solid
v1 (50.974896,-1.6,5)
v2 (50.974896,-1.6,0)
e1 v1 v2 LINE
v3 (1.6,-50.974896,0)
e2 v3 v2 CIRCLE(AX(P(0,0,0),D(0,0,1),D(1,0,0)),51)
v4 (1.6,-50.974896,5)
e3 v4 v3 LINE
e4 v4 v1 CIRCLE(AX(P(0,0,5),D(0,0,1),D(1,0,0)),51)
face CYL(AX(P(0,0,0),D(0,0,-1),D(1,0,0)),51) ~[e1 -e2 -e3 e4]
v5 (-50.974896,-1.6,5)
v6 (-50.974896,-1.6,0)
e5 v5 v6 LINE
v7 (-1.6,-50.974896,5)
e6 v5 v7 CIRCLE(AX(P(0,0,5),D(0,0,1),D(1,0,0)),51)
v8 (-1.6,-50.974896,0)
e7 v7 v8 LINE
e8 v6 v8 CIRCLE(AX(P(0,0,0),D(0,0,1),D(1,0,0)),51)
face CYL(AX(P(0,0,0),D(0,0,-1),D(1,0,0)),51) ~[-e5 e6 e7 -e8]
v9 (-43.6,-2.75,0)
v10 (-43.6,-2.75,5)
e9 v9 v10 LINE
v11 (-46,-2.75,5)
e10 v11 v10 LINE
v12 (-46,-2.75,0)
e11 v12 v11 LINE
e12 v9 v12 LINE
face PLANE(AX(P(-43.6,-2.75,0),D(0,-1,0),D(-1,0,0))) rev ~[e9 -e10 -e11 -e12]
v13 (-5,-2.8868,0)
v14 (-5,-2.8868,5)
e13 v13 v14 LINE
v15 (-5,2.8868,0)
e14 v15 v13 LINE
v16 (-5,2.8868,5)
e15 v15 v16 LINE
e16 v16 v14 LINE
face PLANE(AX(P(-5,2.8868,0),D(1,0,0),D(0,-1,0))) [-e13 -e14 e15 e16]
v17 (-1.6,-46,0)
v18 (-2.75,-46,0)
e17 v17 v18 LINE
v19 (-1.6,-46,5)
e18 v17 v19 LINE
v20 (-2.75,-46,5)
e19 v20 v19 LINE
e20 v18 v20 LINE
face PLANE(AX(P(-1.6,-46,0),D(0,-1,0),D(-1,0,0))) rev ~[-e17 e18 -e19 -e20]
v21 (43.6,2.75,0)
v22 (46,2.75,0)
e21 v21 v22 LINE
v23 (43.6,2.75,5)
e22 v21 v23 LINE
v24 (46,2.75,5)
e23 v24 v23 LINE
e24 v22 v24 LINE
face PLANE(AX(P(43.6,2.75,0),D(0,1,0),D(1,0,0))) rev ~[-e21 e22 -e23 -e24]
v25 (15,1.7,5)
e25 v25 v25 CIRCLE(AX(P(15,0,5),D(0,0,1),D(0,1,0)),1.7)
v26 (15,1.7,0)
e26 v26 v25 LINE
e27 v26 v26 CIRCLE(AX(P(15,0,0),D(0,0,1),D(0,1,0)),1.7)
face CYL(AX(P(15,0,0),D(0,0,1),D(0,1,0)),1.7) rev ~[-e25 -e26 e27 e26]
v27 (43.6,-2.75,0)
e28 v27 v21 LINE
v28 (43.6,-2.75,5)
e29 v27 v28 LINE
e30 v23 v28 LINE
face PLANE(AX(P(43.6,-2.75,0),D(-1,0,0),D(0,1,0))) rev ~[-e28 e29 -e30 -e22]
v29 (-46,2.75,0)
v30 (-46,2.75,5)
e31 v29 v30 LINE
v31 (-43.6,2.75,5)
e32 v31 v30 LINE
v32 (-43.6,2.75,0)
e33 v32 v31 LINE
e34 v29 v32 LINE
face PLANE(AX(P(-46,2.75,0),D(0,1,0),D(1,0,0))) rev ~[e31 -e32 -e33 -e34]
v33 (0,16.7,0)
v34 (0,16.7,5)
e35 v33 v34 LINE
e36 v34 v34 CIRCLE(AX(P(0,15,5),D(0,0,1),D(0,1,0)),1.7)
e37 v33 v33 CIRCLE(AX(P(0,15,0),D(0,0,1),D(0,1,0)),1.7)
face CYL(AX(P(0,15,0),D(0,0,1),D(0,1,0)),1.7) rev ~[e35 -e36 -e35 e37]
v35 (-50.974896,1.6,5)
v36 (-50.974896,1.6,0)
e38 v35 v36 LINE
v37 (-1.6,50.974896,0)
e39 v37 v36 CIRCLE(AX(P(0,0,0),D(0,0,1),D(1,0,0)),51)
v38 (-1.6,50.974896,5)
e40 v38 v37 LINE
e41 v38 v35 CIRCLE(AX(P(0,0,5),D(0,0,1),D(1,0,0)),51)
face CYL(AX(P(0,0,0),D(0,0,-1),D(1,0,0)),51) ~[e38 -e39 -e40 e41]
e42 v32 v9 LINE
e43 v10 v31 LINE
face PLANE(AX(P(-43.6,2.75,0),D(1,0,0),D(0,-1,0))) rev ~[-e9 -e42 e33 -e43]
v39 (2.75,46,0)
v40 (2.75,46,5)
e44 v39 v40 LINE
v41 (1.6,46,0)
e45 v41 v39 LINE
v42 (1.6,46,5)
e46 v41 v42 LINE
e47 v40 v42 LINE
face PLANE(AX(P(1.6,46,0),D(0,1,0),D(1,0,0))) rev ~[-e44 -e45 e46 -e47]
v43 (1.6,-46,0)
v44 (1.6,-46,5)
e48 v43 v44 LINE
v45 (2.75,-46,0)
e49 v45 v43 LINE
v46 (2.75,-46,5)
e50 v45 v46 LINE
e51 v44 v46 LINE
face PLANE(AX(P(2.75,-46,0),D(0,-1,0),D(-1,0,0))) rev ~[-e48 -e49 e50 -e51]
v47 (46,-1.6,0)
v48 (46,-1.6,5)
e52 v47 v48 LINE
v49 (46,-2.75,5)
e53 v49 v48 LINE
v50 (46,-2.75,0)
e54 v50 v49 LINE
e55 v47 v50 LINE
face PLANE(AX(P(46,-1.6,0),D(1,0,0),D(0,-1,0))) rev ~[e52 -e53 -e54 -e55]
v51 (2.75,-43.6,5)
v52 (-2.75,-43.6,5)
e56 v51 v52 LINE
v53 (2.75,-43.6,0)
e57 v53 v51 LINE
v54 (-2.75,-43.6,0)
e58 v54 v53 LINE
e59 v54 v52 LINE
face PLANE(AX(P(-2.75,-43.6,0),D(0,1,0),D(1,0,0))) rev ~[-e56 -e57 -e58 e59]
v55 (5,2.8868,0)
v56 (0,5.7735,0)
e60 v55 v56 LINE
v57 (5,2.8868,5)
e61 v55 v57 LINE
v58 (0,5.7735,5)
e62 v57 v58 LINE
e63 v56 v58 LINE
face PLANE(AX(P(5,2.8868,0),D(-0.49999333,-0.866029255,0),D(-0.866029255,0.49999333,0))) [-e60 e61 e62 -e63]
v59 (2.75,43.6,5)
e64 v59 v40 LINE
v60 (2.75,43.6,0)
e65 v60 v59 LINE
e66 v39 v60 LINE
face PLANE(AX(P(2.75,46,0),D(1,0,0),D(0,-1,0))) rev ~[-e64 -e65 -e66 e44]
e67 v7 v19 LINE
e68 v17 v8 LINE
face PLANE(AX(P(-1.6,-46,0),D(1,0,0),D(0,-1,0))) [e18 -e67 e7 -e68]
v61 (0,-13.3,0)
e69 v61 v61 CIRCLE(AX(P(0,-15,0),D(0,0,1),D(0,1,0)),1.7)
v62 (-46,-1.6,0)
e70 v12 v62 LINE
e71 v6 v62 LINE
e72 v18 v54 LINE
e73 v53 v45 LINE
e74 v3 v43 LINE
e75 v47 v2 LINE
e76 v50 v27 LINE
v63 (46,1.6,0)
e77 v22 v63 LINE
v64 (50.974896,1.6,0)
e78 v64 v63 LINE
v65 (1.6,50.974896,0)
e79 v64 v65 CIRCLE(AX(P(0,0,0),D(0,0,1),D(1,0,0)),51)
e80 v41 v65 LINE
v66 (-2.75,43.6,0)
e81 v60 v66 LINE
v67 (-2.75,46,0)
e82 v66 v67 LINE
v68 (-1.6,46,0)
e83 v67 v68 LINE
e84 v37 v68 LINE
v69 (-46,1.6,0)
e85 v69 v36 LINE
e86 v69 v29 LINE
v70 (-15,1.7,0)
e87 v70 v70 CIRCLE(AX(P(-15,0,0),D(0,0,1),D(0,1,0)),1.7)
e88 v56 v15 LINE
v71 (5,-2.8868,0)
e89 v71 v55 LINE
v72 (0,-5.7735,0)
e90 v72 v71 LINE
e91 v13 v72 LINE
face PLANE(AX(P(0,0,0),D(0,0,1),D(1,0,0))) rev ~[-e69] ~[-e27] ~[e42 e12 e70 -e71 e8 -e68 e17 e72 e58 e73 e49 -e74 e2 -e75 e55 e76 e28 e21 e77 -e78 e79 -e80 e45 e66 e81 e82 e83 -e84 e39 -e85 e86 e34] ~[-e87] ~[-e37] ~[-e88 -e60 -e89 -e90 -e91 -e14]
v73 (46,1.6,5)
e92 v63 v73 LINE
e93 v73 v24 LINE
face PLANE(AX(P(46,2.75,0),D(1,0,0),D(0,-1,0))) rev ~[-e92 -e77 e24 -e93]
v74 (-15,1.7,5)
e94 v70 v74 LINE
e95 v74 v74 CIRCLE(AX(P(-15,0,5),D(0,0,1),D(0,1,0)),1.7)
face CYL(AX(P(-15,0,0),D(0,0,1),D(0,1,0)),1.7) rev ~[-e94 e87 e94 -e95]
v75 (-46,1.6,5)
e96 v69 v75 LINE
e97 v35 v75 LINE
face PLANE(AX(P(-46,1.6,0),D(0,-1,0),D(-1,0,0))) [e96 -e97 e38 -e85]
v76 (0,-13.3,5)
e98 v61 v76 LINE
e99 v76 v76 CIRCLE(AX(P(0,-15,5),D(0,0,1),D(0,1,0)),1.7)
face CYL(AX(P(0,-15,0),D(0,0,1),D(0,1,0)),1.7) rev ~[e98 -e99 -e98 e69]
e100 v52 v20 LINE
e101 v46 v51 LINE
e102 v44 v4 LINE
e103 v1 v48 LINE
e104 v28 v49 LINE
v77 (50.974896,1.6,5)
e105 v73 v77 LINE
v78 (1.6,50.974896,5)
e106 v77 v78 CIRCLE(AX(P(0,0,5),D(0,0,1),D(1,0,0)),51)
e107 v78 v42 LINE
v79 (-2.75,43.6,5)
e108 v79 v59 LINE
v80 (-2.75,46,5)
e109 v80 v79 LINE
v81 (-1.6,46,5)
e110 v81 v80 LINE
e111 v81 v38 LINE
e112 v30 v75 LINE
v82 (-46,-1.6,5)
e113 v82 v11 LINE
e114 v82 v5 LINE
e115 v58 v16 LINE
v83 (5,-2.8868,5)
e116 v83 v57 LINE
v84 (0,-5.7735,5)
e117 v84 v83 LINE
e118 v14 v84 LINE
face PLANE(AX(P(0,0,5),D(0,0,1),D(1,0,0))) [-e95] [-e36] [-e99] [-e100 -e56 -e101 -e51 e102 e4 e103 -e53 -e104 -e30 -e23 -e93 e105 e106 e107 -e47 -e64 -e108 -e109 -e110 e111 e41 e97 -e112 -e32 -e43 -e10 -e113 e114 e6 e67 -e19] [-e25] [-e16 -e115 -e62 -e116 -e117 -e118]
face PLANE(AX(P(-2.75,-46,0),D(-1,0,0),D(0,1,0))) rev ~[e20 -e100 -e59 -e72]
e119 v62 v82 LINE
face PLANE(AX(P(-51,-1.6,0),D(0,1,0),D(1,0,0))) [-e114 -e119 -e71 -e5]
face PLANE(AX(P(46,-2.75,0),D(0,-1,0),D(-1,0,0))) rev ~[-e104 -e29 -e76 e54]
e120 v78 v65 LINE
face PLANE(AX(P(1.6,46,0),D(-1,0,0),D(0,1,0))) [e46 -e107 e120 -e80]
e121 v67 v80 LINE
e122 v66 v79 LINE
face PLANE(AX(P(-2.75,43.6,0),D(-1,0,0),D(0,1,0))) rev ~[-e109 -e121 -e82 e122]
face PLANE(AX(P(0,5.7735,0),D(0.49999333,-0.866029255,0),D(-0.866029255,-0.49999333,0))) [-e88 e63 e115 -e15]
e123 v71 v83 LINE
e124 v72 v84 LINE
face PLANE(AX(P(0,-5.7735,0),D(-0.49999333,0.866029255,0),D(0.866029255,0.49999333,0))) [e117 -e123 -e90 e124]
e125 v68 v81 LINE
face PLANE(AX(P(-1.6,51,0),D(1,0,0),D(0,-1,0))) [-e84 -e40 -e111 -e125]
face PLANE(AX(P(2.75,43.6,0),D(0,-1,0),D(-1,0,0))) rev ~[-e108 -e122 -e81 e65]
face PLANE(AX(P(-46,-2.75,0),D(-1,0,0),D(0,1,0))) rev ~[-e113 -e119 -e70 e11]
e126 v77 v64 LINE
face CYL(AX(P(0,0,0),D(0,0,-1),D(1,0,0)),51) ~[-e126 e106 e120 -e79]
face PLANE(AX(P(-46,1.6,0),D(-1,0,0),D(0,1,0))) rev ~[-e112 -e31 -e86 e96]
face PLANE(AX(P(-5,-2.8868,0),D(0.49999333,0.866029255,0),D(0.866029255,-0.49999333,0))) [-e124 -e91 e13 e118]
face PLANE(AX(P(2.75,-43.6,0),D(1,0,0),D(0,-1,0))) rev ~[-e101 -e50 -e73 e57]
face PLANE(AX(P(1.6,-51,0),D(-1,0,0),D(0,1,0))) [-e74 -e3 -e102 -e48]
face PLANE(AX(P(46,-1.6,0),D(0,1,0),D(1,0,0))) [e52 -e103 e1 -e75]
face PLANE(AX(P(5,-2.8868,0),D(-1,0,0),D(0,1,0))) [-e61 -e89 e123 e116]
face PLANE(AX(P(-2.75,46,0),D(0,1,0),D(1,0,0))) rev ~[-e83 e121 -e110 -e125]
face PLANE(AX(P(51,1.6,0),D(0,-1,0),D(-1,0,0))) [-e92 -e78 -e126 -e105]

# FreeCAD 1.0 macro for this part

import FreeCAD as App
import Part
import Sketcher
Q = App.Units.Quantity

doc = App.newDocument("Part")
body = doc.addObject("PartDesign::Body", "Body")

sketch1 = body.newObject("Sketcher::SketchObject", "Sketch")
sketch1.AttachmentSupport = (doc.getObject("XY_Plane"), [""])
sketch1.MapMode = "FlatFace"
sketch1.addGeometry(Part.Circle(App.Vector(0, 0, 0), App.Vector(0, 0, 1), 51), False)
sketch1.addConstraint([
    Sketcher.Constraint("Coincident", 0, 3, -1, 1),
    Sketcher.Constraint("Diameter", 0, Q("102 mm")),
])
pad1 = body.newObject("PartDesign::Pad", "Pad")
pad1.Profile = sketch1
pad1.Length = 5

sketch2 = body.newObject("Sketcher::SketchObject", "Sketch001")
sketch2.AttachmentSupport = (doc.getObject("XY_Plane"), [""])
sketch2.MapMode = "FlatFace"
sketch2.addGeometry([
    Part.LineSegment(App.Vector(-5, 3, 0), App.Vector(0, 6, 0)),
    Part.LineSegment(App.Vector(0, 6, 0), App.Vector(5, 3, 0)),
    Part.LineSegment(App.Vector(5, 3, 0), App.Vector(5, -3, 0)),
    Part.LineSegment(App.Vector(5, -3, 0), App.Vector(0, -6, 0)),
    Part.LineSegment(App.Vector(0, -6, 0), App.Vector(-5, -3, 0)),
    Part.LineSegment(App.Vector(-5, -3, 0), App.Vector(-5, 3, 0)),
], False)
sketch2.addConstraint([
    Sketcher.Constraint("Coincident", 0, 2, 1, 1),
    Sketcher.Constraint("Coincident", 1, 2, 2, 1),
    Sketcher.Constraint("Coincident", 2, 2, 3, 1),
    Sketcher.Constraint("Coincident", 3, 2, 4, 1),
    Sketcher.Constraint("Coincident", 4, 2, 5, 1),
    Sketcher.Constraint("Coincident", 5, 2, 0, 1),
    Sketcher.Constraint("Vertical", 2),
    Sketcher.Constraint("Vertical", 5),
    Sketcher.Constraint("Symmetric", 0, 2, 3, 2, -1, 1),
    Sketcher.Constraint("Symmetric", 1, 2, 4, 2, -1, 1),
    Sketcher.Constraint("PointOnObject", 0, 2, -2),
    Sketcher.Constraint("Parallel", 0, 3),
    Sketcher.Constraint("Horizontal", 2, 2, 4, 2),
    Sketcher.Constraint("DistanceX", 4, 2, 2, 2, Q("10 mm")),
    Sketcher.Constraint("Angle", 0, Q("29.9996 deg")),
    Sketcher.Constraint("DistanceY", 2, 2, 2, 1, Q("5.7736 mm")),
])
pocket1 = body.newObject("PartDesign::Pocket", "Pocket")
pocket1.Profile = sketch2
pocket1.Length = 5
pocket1.Reversed = True

sketch3 = body.newObject("Sketcher::SketchObject", "Sketch002")
sketch3.AttachmentSupport = (doc.getObject("XY_Plane"), [""])
sketch3.MapMode = "FlatFace"
sketch3.addGeometry([
    Part.Circle(App.Vector(0, 15, 0), App.Vector(0, 0, 1), 1.7),
    Part.Circle(App.Vector(-15, 0, 0), App.Vector(0, 0, 1), 1.7),
    Part.Circle(App.Vector(0, -15, 0), App.Vector(0, 0, 1), 1.7),
    Part.Circle(App.Vector(15, 0, 0), App.Vector(0, 0, 1), 1.7),
], False)
sketch3.addConstraint([
    Sketcher.Constraint("Equal", 0, 1),
    Sketcher.Constraint("Equal", 1, 2),
    Sketcher.Constraint("Equal", 2, 3),
    Sketcher.Constraint("Symmetric", 0, 3, 2, 3, -1, 1),
    Sketcher.Constraint("Symmetric", 1, 3, 3, 3, -1, 1),
    Sketcher.Constraint("PointOnObject", 0, 3, -2),
    Sketcher.Constraint("PointOnObject", 1, 3, -1),
    Sketcher.Constraint("Diameter", 0, Q("3.4 mm")),
    Sketcher.Constraint("DistanceY", -1, 1, 0, 3, Q("15 mm")),
    Sketcher.Constraint("DistanceX", 1, 3, -1, 1, Q("15 mm")),
])
doc.recompute()
hole = body.newObject("PartDesign::Hole", "Hole")
hole.Profile = sketch3
hole.ThreadType = "None"
hole.Diameter = 3.4
hole.DepthType = "Dimension"
hole.Depth = 8
hole.DrillPoint = "Angled"
hole.DrillPointAngle = 118
hole.Reversed = True

sketch4 = body.newObject("Sketcher::SketchObject", "Sketch003")
sketch4.AttachmentSupport = (doc.getObject("XY_Plane"), [""])
sketch4.MapMode = "FlatFace"
sketch4.addGeometry([
    Part.LineSegment(App.Vector(-1.6, 51, 0), App.Vector(1.6, 51, 0)),
    Part.LineSegment(App.Vector(1.6, 51, 0), App.Vector(1.6, 46, 0)),
    Part.LineSegment(App.Vector(1.6, 46, 0), App.Vector(2.8, 46, 0)),
    Part.LineSegment(App.Vector(2.8, 46, 0), App.Vector(2.8, 43.6, 0)),
    Part.LineSegment(App.Vector(2.8, 43.6, 0), App.Vector(-2.8, 43.6, 0)),
    Part.LineSegment(App.Vector(-2.8, 43.6, 0), App.Vector(-2.8, 46, 0)),
    Part.LineSegment(App.Vector(-2.8, 46, 0), App.Vector(-1.6, 46, 0)),
    Part.LineSegment(App.Vector(-1.6, 46, 0), App.Vector(-1.6, 51, 0)),
    Part.LineSegment(App.Vector(51, 1.6, 0), App.Vector(51, -1.6, 0)),
    Part.LineSegment(App.Vector(51, -1.6, 0), App.Vector(46, -1.6, 0)),
    Part.LineSegment(App.Vector(46, -1.6, 0), App.Vector(46, -2.8, 0)),
    Part.LineSegment(App.Vector(46, -2.8, 0), App.Vector(43.6, -2.8, 0)),
    Part.LineSegment(App.Vector(43.6, -2.8, 0), App.Vector(43.6, 2.8, 0)),
    Part.LineSegment(App.Vector(43.6, 2.8, 0), App.Vector(46, 2.8, 0)),
    Part.LineSegment(App.Vector(46, 2.8, 0), App.Vector(46, 1.6, 0)),
    Part.LineSegment(App.Vector(46, 1.6, 0), App.Vector(51, 1.6, 0)),
    Part.LineSegment(App.Vector(1.6, -51, 0), App.Vector(-1.6, -51, 0)),
    Part.LineSegment(App.Vector(-1.6, -51, 0), App.Vector(-1.6, -46, 0)),
    Part.LineSegment(App.Vector(-1.6, -46, 0), App.Vector(-2.8, -46, 0)),
    Part.LineSegment(App.Vector(-2.8, -46, 0), App.Vector(-2.8, -43.6, 0)),
    Part.LineSegment(App.Vector(-2.8, -43.6, 0), App.Vector(2.8, -43.6, 0)),
    Part.LineSegment(App.Vector(2.8, -43.6, 0), App.Vector(2.8, -46, 0)),
    Part.LineSegment(App.Vector(2.8, -46, 0), App.Vector(1.6, -46, 0)),
    Part.LineSegment(App.Vector(1.6, -46, 0), App.Vector(1.6, -51, 0)),
    Part.LineSegment(App.Vector(-51, -1.6, 0), App.Vector(-51, 1.6, 0)),
    Part.LineSegment(App.Vector(-51, 1.6, 0), App.Vector(-46, 1.6, 0)),
    Part.LineSegment(App.Vector(-46, 1.6, 0), App.Vector(-46, 2.8, 0)),
    Part.LineSegment(App.Vector(-46, 2.8, 0), App.Vector(-43.6, 2.8, 0)),
    Part.LineSegment(App.Vector(-43.6, 2.8, 0), App.Vector(-43.6, -2.8, 0)),
    Part.LineSegment(App.Vector(-43.6, -2.8, 0), App.Vector(-46, -2.8, 0)),
    Part.LineSegment(App.Vector(-46, -2.8, 0), App.Vector(-46, -1.6, 0)),
    Part.LineSegment(App.Vector(-46, -1.6, 0), App.Vector(-51, -1.6, 0)),
], False)
sketch4.addConstraint([
    Sketcher.Constraint("Coincident", 0, 2, 1, 1),
    Sketcher.Constraint("Coincident", 1, 2, 2, 1),
    Sketcher.Constraint("Coincident", 2, 2, 3, 1),
    Sketcher.Constraint("Coincident", 3, 2, 4, 1),
    Sketcher.Constraint("Coincident", 4, 2, 5, 1),
    Sketcher.Constraint("Coincident", 5, 2, 6, 1),
    Sketcher.Constraint("Coincident", 6, 2, 7, 1),
    Sketcher.Constraint("Coincident", 7, 2, 0, 1),
    Sketcher.Constraint("Coincident", 8, 2, 9, 1),
    Sketcher.Constraint("Coincident", 9, 2, 10, 1),
    Sketcher.Constraint("Coincident", 10, 2, 11, 1),
    Sketcher.Constraint("Coincident", 11, 2, 12, 1),
    Sketcher.Constraint("Coincident", 12, 2, 13, 1),
    Sketcher.Constraint("Coincident", 13, 2, 14, 1),
    Sketcher.Constraint("Coincident", 14, 2, 15, 1),
    Sketcher.Constraint("Coincident", 15, 2, 8, 1),
    Sketcher.Constraint("Coincident", 16, 2, 17, 1),
    Sketcher.Constraint("Coincident", 17, 2, 18, 1),
    Sketcher.Constraint("Coincident", 18, 2, 19, 1),
    Sketcher.Constraint("Coincident", 19, 2, 20, 1),
    Sketcher.Constraint("Coincident", 20, 2, 21, 1),
    Sketcher.Constraint("Coincident", 21, 2, 22, 1),
    Sketcher.Constraint("Coincident", 22, 2, 23, 1),
    Sketcher.Constraint("Coincident", 23, 2, 16, 1),
    Sketcher.Constraint("Coincident", 24, 2, 25, 1),
    Sketcher.Constraint("Coincident", 25, 2, 26, 1),
    Sketcher.Constraint("Coincident", 26, 2, 27, 1),
    Sketcher.Constraint("Coincident", 27, 2, 28, 1),
    Sketcher.Constraint("Coincident", 28, 2, 29, 1),
    Sketcher.Constraint("Coincident", 29, 2, 30, 1),
    Sketcher.Constraint("Coincident", 30, 2, 31, 1),
    Sketcher.Constraint("Coincident", 31, 2, 24, 1),
    Sketcher.Constraint("Horizontal", 0),
    Sketcher.Constraint("Vertical", 1),
    Sketcher.Constraint("Horizontal", 2),
    Sketcher.Constraint("Vertical", 3),
    Sketcher.Constraint("Horizontal", 4),
    Sketcher.Constraint("Vertical", 5),
    Sketcher.Constraint("Horizontal", 6),
    Sketcher.Constraint("Vertical", 7),
    Sketcher.Constraint("Vertical", 8),
    Sketcher.Constraint("Horizontal", 9),
    Sketcher.Constraint("Vertical", 10),
    Sketcher.Constraint("Horizontal", 11),
    Sketcher.Constraint("Vertical", 12),
    Sketcher.Constraint("Horizontal", 13),
    Sketcher.Constraint("Vertical", 14),
    Sketcher.Constraint("Horizontal", 15),
    Sketcher.Constraint("Horizontal", 16),
    Sketcher.Constraint("Vertical", 17),
    Sketcher.Constraint("Horizontal", 18),
    Sketcher.Constraint("Vertical", 19),
    Sketcher.Constraint("Horizontal", 20),
    Sketcher.Constraint("Vertical", 21),
    Sketcher.Constraint("Horizontal", 22),
    Sketcher.Constraint("Vertical", 23),
    Sketcher.Constraint("Vertical", 24),
    Sketcher.Constraint("Horizontal", 25),
    Sketcher.Constraint("Vertical", 26),
    Sketcher.Constraint("Horizontal", 27),
    Sketcher.Constraint("Vertical", 28),
    Sketcher.Constraint("Horizontal", 29),
    Sketcher.Constraint("Vertical", 30),
    Sketcher.Constraint("Horizontal", 31),
    Sketcher.Constraint("Symmetric", 0, 2, 16, 2, -1, 1),
    Sketcher.Constraint("Symmetric", 2, 2, 18, 2, -1, 1),
    Sketcher.Constraint("Symmetric", 4, 2, 20, 2, -1, 1),
    Sketcher.Constraint("Symmetric", 6, 2, 22, 2, -1, 1),
    Sketcher.Constraint("Symmetric", 8, 2, 24, 2, -1, 1),
    Sketcher.Constraint("Symmetric", 10, 2, 26, 2, -1, 1),
    Sketcher.Constraint("Symmetric", 12, 2, 28, 2, -1, 1),
    Sketcher.Constraint("Symmetric", 14, 2, 30, 2, -1, 1),
    Sketcher.Constraint("Symmetric", 2, 2, 5, 2, -2),
    Sketcher.Constraint("Symmetric", 14, 2, 25, 2, -2),
    Sketcher.Constraint("Horizontal", 13, 2, 26, 2),
    Sketcher.Constraint("Vertical", 7, 2, 16, 2),
    Sketcher.Constraint("Equal", 31, 1),
    Sketcher.Constraint("Equal", 29, 3),
    Sketcher.Constraint("Equal", 16, 8),
    Sketcher.Constraint("Equal", 22, 10),
    Sketcher.Constraint("DistanceX", 9, 2, 9, 1, Q("5 mm")),
    Sketcher.Constraint("DistanceX", 0, 1, 0, 2, Q("3.2 mm")),
    Sketcher.Constraint("DistanceX", 4, 2, 4, 1, Q("5.5 mm")),
    Sketcher.Constraint("DistanceX", 11, 2, 11, 1, Q("2.4 mm")),
    Sketcher.Constraint("DistanceY", -1, 1, 0, 2, Q("51 mm")),
    Sketcher.Constraint("DistanceX", -1, 1, 8, 2, Q("51 mm")),
])
pocket2 = body.newObject("PartDesign::Pocket", "Pocket001")
pocket2.Profile = sketch4
pocket2.Type = "ThroughAll"
pocket2.Reversed = True

doc.recompute()
